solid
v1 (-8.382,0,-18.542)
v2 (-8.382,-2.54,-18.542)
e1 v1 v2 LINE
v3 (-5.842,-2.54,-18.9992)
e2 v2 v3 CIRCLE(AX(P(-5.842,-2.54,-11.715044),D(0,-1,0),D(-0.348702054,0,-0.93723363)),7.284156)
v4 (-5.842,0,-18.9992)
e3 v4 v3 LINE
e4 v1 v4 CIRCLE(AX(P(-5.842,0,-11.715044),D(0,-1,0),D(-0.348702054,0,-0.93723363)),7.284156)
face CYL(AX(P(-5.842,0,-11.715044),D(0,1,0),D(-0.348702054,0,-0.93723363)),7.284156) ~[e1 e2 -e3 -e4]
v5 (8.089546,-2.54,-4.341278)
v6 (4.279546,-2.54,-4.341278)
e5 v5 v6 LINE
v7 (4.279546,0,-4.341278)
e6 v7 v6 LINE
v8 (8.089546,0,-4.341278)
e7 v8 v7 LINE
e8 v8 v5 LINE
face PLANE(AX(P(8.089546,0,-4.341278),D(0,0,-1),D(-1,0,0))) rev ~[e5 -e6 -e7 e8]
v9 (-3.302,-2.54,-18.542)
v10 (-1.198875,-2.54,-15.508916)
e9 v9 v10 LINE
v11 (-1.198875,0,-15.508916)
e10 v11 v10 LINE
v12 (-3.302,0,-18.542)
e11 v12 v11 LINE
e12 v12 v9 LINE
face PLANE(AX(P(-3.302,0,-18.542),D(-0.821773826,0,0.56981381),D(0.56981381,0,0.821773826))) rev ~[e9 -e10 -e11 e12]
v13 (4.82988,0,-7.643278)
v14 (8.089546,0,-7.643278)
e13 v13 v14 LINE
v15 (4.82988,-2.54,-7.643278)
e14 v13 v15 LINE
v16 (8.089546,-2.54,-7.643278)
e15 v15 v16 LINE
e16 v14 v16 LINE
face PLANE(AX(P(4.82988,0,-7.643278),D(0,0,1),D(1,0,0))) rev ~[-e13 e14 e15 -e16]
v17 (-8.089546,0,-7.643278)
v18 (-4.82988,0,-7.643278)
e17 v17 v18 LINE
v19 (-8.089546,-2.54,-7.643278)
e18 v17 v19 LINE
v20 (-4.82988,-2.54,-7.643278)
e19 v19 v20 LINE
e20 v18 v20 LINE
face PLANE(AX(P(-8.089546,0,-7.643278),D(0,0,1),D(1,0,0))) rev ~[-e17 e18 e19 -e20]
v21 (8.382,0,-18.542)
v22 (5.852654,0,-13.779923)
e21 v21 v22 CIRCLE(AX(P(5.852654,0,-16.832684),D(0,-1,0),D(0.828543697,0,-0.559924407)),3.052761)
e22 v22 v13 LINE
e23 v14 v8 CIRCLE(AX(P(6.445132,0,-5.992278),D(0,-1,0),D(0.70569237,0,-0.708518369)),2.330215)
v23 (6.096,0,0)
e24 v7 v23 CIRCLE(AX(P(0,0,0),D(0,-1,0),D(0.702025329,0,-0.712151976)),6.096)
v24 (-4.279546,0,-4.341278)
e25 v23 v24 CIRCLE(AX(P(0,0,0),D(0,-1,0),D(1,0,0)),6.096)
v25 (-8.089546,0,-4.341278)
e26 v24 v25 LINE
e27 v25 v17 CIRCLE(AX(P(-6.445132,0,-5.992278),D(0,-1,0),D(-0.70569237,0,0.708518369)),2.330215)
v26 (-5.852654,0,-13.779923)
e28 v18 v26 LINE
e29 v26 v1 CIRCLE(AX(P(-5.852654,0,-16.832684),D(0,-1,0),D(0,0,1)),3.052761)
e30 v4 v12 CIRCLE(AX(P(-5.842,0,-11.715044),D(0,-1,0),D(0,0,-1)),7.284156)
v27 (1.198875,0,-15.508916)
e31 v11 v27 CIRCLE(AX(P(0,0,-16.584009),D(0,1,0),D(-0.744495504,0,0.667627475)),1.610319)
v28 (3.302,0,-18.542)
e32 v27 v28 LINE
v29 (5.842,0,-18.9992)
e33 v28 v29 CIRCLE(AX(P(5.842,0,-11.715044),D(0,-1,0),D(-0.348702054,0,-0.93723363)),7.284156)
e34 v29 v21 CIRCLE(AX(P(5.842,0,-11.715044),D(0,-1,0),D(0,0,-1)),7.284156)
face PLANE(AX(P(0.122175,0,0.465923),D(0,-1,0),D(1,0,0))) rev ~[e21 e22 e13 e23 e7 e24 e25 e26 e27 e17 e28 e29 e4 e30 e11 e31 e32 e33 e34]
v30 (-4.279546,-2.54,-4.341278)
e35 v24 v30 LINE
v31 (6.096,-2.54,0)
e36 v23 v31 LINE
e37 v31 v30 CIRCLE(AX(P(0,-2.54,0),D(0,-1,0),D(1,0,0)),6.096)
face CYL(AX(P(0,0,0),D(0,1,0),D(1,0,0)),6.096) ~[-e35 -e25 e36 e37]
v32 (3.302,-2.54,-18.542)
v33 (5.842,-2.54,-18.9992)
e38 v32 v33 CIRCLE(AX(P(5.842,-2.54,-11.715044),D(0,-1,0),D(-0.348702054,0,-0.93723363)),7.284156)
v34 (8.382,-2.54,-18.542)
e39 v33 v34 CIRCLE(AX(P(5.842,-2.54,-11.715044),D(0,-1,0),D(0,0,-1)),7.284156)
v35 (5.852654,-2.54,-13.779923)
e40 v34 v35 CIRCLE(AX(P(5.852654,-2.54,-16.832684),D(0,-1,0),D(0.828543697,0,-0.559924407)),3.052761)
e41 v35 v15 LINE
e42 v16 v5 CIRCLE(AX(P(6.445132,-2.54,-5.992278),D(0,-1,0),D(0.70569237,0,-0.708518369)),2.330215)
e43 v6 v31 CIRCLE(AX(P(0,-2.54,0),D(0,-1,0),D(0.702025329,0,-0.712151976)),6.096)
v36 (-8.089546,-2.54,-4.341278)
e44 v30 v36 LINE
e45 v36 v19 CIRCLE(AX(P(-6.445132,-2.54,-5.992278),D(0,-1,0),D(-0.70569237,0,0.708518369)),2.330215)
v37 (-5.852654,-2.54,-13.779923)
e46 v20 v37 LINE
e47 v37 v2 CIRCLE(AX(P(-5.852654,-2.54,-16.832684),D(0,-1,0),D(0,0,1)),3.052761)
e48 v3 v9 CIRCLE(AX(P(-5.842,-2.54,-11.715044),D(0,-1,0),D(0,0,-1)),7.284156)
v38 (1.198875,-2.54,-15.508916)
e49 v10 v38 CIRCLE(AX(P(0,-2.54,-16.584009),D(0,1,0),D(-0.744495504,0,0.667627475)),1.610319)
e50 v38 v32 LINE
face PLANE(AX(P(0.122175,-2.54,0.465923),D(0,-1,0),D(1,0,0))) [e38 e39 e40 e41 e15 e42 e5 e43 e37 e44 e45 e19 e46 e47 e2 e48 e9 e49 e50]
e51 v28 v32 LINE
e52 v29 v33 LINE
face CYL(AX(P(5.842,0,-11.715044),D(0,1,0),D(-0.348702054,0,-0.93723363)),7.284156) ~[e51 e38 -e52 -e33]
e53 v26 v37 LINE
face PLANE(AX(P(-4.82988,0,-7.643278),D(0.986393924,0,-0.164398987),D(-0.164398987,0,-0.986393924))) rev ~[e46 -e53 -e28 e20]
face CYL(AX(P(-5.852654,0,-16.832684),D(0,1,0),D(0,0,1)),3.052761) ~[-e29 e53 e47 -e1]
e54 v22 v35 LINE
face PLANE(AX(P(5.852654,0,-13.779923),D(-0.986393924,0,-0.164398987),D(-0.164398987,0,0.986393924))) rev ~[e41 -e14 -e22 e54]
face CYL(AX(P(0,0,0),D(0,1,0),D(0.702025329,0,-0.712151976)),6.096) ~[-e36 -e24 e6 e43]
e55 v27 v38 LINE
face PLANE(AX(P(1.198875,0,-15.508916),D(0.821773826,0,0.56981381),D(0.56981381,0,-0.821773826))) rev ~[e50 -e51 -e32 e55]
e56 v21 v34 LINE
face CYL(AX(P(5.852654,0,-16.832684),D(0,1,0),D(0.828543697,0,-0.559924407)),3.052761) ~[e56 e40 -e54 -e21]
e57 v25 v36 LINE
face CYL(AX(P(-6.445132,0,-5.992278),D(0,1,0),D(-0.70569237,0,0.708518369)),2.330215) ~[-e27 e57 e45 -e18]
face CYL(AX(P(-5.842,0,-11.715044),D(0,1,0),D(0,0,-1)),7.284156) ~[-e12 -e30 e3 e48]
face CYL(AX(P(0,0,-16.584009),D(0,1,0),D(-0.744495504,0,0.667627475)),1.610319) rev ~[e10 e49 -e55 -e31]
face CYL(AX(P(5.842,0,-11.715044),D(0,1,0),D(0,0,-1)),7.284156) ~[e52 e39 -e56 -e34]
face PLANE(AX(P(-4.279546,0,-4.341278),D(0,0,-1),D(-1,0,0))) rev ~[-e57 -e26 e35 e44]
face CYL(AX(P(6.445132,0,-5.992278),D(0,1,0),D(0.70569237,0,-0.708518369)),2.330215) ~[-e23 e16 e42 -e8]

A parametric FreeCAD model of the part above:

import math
import FreeCAD as App
import Part
import Sketcher
from FreeCAD import Vector
Q = App.Units.Quantity

doc = App.newDocument("Part")
body = doc.addObject("PartDesign::Body", "Body")

sketch1 = body.newObject("Sketcher::SketchObject", "Sketch")
sketch1.AttachmentSupport = (doc.getObject("XZ_Plane"), [""])
sketch1.MapMode = "FlatFace"
sketch1.addGeometry(Part.ArcOfCircle(Part.Circle(Vector(0, 0, 0), Vector(0, 0, 1), 6.1), math.radians(-45), math.radians(0)), False)
sketch1.addGeometry(Part.ArcOfCircle(Part.Circle(Vector(0, 0, 0), Vector(0, 0, 1), 6.1), math.radians(0), math.radians(225)), False)
sketch1.addGeometry(Part.LineSegment(Vector(-4.3, -4.3, 0), Vector(-8.1, -4.3, 0)), False)
sketch1.addGeometry(Part.ArcOfCircle(Part.Circle(Vector(-6.4, -6, 0), Vector(0, 0, 1), 2.3), math.radians(135), math.radians(225)), False)
sketch1.addGeometry(Part.LineSegment(Vector(-8.1, -7.6, 0), Vector(-4.8, -7.6, 0)), False)
sketch1.addGeometry(Part.LineSegment(Vector(-4.8, -7.6, 0), Vector(-5.9, -13.8, 0)), False)
sketch1.addGeometry(Part.ArcOfCircle(Part.Circle(Vector(-5.9, -16.8, 0), Vector(0, 0, 1), 3.1), math.radians(90), math.radians(214)), False)
sketch1.addGeometry(Part.ArcOfCircle(Part.Circle(Vector(-5.8, -11.7, 0), Vector(0, 0, 1), 7.3), math.radians(-110), math.radians(-90)), False)
sketch1.addGeometry(Part.ArcOfCircle(Part.Circle(Vector(-5.8, -11.7, 0), Vector(0, 0, 1), 7.3), math.radians(-90), math.radians(-70)), False)
sketch1.addGeometry(Part.LineSegment(Vector(-3.3, -18.5, 0), Vector(-1.2, -15.5, 0)), False)
sketch1.addGeometry(Part.ArcOfCircle(Part.Circle(Vector(0, -16.6, 0), Vector(0, 0, 1), 1.6), math.radians(42), math.radians(138)), False)
sketch1.addGeometry(Part.LineSegment(Vector(1.2, -15.5, 0), Vector(3.3, -18.5, 0)), False)
sketch1.addGeometry(Part.ArcOfCircle(Part.Circle(Vector(5.8, -11.7, 0), Vector(0, 0, 1), 7.3), math.radians(-110), math.radians(-90)), False)
sketch1.addGeometry(Part.ArcOfCircle(Part.Circle(Vector(5.8, -11.7, 0), Vector(0, 0, 1), 7.3), math.radians(-90), math.radians(-70)), False)
sketch1.addGeometry(Part.ArcOfCircle(Part.Circle(Vector(5.9, -16.8, 0), Vector(0, 0, 1), 3.1), math.radians(-34), math.radians(90)), False)
sketch1.addGeometry(Part.LineSegment(Vector(5.9, -13.8, 0), Vector(4.8, -7.6, 0)), False)
sketch1.addGeometry(Part.LineSegment(Vector(4.8, -7.6, 0), Vector(8.1, -7.6, 0)), False)
sketch1.addGeometry(Part.ArcOfCircle(Part.Circle(Vector(6.4, -6, 0), Vector(0, 0, 1), 2.3), math.radians(-45), math.radians(45)), False)
sketch1.addGeometry(Part.LineSegment(Vector(8.1, -4.3, 0), Vector(4.3, -4.3, 0)), False)
sketch1.addConstraint(Sketcher.Constraint("Tangent", 0, 2, 1, 1))
sketch1.addConstraint(Sketcher.Constraint("Coincident", 1, 2, 2, 1))
sketch1.addConstraint(Sketcher.Constraint("Coincident", 2, 2, 3, 1))
sketch1.addConstraint(Sketcher.Constraint("Coincident", 3, 2, 4, 1))
sketch1.addConstraint(Sketcher.Constraint("Coincident", 4, 2, 5, 1))
sketch1.addConstraint(Sketcher.Constraint("Coincident", 5, 2, 6, 1))
sketch1.addConstraint(Sketcher.Constraint("Coincident", 6, 2, 7, 1))
sketch1.addConstraint(Sketcher.Constraint("Tangent", 7, 2, 8, 1))
sketch1.addConstraint(Sketcher.Constraint("Coincident", 8, 2, 9, 1))
sketch1.addConstraint(Sketcher.Constraint("Coincident", 9, 2, 10, 2))
sketch1.addConstraint(Sketcher.Constraint("Coincident", 10, 1, 11, 1))
sketch1.addConstraint(Sketcher.Constraint("Coincident", 11, 2, 12, 1))
sketch1.addConstraint(Sketcher.Constraint("Tangent", 12, 2, 13, 1))
sketch1.addConstraint(Sketcher.Constraint("Coincident", 13, 2, 14, 1))
sketch1.addConstraint(Sketcher.Constraint("Coincident", 14, 2, 15, 1))
sketch1.addConstraint(Sketcher.Constraint("Coincident", 15, 2, 16, 1))
sketch1.addConstraint(Sketcher.Constraint("Coincident", 16, 2, 17, 1))
sketch1.addConstraint(Sketcher.Constraint("Coincident", 17, 2, 18, 1))
sketch1.addConstraint(Sketcher.Constraint("Coincident", 18, 2, 0, 1))
sketch1.addConstraint(Sketcher.Constraint("Horizontal", 2))
sketch1.addConstraint(Sketcher.Constraint("Horizontal", 4))
sketch1.addConstraint(Sketcher.Constraint("Horizontal", 16))
sketch1.addConstraint(Sketcher.Constraint("Horizontal", 18))
sketch1.addConstraint(Sketcher.Constraint("Coincident", 0, 3, -1, 1))
sketch1.addConstraint(Sketcher.Constraint("Equal", 0, 1))
sketch1.addConstraint(Sketcher.Constraint("Equal", 7, 8))
sketch1.addConstraint(Sketcher.Constraint("Equal", 8, 12))
sketch1.addConstraint(Sketcher.Constraint("Equal", 12, 13))
sketch1.addConstraint(Sketcher.Constraint("Equal", 6, 14))
sketch1.addConstraint(Sketcher.Constraint("Equal", 3, 17))
sketch1.addConstraint(Sketcher.Constraint("Symmetric", 7, 3, 12, 3, -2))
sketch1.addConstraint(Sketcher.Constraint("Symmetric", 6, 3, 14, 3, -2))
sketch1.addConstraint(Sketcher.Constraint("Symmetric", 3, 3, 17, 3, -2))
sketch1.addConstraint(Sketcher.Constraint("Symmetric", 9, 2, 10, 1, -2))
sketch1.addConstraint(Sketcher.Constraint("Symmetric", 4, 2, 15, 2, -2))
sketch1.addConstraint(Sketcher.Constraint("PointOnObject", 0, 2, -1))
sketch1.addConstraint(Sketcher.Constraint("Horizontal", 6, 2, 8, 2))
sketch1.addConstraint(Sketcher.Constraint("Horizontal", 8, 2, 11, 2))
sketch1.addConstraint(Sketcher.Constraint("Horizontal", 2, 2, 17, 2))
sketch1.addConstraint(Sketcher.Constraint("Vertical", 2, 2, 3, 2))
sketch1.addConstraint(Sketcher.Constraint("Vertical", 6, 3, 5, 2))
sketch1.addConstraint(Sketcher.Constraint("Vertical", 8, 3, 7, 2))
sketch1.addConstraint(Sketcher.Constraint("Vertical", 13, 3, 12, 2))
sketch1.addConstraint(Sketcher.Constraint("Equal", 5, 15))
sketch1.addConstraint(Sketcher.Constraint("Radius", 0, Q("0.24 in")))
sketch1.addConstraint(Sketcher.Constraint("DistanceX", 2, 2, 2, 1, Q("0.15 in")))
sketch1.addConstraint(Sketcher.Constraint("DistanceX", 6, 2, 7, 3, Q("0.1 in")))
sketch1.addConstraint(Sketcher.Constraint("DistanceX", 7, 3, -1, 1, Q("0.23 in")))
sketch1.addConstraint(Sketcher.Constraint("DistanceY", 6, 2, -1, 1, Q("0.73 in")))
sketch1.addConstraint(Sketcher.Constraint("DistanceY", 3, 2, 2, 2, Q("0.13 in")))
sketch1.addConstraint(Sketcher.Constraint("DistanceY", 7, 2, -1, 1, Q("0.748 in")))
sketch1.addConstraint(Sketcher.Constraint("Radius", 6, Q("3.052761 mm")))
sketch1.addConstraint(Sketcher.Constraint("Radius", 10, Q("1.610319 mm")))
sketch1.addConstraint(Sketcher.Constraint("DistanceX", 9, 2, -1, 1, Q("0.0471998 in")))
sketch1.addConstraint(Sketcher.Constraint("Radius", 3, Q("2.330215 mm")))
sketch1.addConstraint(Sketcher.Constraint("DistanceY", 5, 2, 4, 2, Q("0.2416002 in")))
sketch1.addConstraint(Sketcher.Constraint("Distance", 9, Q("3.690898 mm")))
sketch1.addConstraint(Sketcher.Constraint("DistanceX", 4, 1, 4, 2, Q("3.259667 mm")))
sketch1.addConstraint(Sketcher.Constraint("DistanceX", 3, 3, -1, 1, Q("6.445132 mm")))
pad1 = body.newObject("PartDesign::Pad", "Pad")
pad1.Profile = sketch1
pad1.Length = Q("0.1 in")

doc.recompute()
